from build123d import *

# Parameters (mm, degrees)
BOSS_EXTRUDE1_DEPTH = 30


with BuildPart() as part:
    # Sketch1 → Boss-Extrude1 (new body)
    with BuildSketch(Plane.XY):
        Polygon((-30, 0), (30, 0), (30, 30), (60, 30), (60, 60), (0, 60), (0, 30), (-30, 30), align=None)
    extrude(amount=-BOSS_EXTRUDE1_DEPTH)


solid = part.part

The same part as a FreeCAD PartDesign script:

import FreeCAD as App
import Part
import Sketcher

V = App.Vector
Q = App.Units.Quantity

doc = App.newDocument("Part")
body = doc.addObject("PartDesign::Body", "Body")

sketch1 = doc.addObject("Sketcher::SketchObject", "Sketch")
body.addObject(sketch1)
sketch1.AttachmentSupport = (doc.XY_Plane, [""])
sketch1.MapMode = "FlatFace"
sketch1.addGeometry(Part.LineSegment(V(-30, 0, 0), V(30, 0, 0)), False)
sketch1.addGeometry(Part.LineSegment(V(30, 0, 0), V(30, 30, 0)), False)
sketch1.addGeometry(Part.LineSegment(V(30, 30, 0), V(60, 30, 0)), False)
sketch1.addGeometry(Part.LineSegment(V(60, 30, 0), V(60, 60, 0)), False)
sketch1.addGeometry(Part.LineSegment(V(60, 60, 0), V(0, 60, 0)), False)
sketch1.addGeometry(Part.LineSegment(V(0, 60, 0), V(0, 30, 0)), False)
sketch1.addGeometry(Part.LineSegment(V(0, 30, 0), V(-30, 30, 0)), False)
sketch1.addGeometry(Part.LineSegment(V(-30, 30, 0), V(-30, 0, 0)), False)
sketch1.addConstraint(Sketcher.Constraint("Coincident", 0, 2, 1, 1))
sketch1.addConstraint(Sketcher.Constraint("Coincident", 1, 2, 2, 1))
sketch1.addConstraint(Sketcher.Constraint("Coincident", 2, 2, 3, 1))
sketch1.addConstraint(Sketcher.Constraint("Coincident", 3, 2, 4, 1))
sketch1.addConstraint(Sketcher.Constraint("Coincident", 4, 2, 5, 1))
sketch1.addConstraint(Sketcher.Constraint("Coincident", 5, 2, 6, 1))
sketch1.addConstraint(Sketcher.Constraint("Coincident", 6, 2, 7, 1))
sketch1.addConstraint(Sketcher.Constraint("Coincident", 7, 2, 0, 1))
sketch1.addConstraint(Sketcher.Constraint("Horizontal", 0))
sketch1.addConstraint(Sketcher.Constraint("Vertical", 1))
sketch1.addConstraint(Sketcher.Constraint("Horizontal", 2))
sketch1.addConstraint(Sketcher.Constraint("Vertical", 3))
sketch1.addConstraint(Sketcher.Constraint("Horizontal", 4))
sketch1.addConstraint(Sketcher.Constraint("Vertical", 5))
sketch1.addConstraint(Sketcher.Constraint("Horizontal", 6))
sketch1.addConstraint(Sketcher.Constraint("Vertical", 7))
sketch1.addConstraint(Sketcher.Constraint("Symmetric", 0, 2, 7, 2, -1, 1))
sketch1.addConstraint(Sketcher.Constraint("PointOnObject", 4, 2, -2))
sketch1.addConstraint(Sketcher.Constraint("Horizontal", 2, 2, 5, 2))
sketch1.addConstraint(Sketcher.Constraint("Equal", 0, 4))
sketch1.addConstraint(Sketcher.Constraint("Equal", 6, 1))
sketch1.addConstraint(Sketcher.Constraint("Equal", 1, 3))
sketch1.addConstraint(Sketcher.Constraint("DistanceX", 0, 1, 0, 2, Q("60 mm")))
pad1 = doc.addObject("PartDesign::Pad", "Pad")
body.addObject(pad1)
pad1.Profile = sketch1
pad1.Length = 30
pad1.Reversed = True

doc.recompute()
